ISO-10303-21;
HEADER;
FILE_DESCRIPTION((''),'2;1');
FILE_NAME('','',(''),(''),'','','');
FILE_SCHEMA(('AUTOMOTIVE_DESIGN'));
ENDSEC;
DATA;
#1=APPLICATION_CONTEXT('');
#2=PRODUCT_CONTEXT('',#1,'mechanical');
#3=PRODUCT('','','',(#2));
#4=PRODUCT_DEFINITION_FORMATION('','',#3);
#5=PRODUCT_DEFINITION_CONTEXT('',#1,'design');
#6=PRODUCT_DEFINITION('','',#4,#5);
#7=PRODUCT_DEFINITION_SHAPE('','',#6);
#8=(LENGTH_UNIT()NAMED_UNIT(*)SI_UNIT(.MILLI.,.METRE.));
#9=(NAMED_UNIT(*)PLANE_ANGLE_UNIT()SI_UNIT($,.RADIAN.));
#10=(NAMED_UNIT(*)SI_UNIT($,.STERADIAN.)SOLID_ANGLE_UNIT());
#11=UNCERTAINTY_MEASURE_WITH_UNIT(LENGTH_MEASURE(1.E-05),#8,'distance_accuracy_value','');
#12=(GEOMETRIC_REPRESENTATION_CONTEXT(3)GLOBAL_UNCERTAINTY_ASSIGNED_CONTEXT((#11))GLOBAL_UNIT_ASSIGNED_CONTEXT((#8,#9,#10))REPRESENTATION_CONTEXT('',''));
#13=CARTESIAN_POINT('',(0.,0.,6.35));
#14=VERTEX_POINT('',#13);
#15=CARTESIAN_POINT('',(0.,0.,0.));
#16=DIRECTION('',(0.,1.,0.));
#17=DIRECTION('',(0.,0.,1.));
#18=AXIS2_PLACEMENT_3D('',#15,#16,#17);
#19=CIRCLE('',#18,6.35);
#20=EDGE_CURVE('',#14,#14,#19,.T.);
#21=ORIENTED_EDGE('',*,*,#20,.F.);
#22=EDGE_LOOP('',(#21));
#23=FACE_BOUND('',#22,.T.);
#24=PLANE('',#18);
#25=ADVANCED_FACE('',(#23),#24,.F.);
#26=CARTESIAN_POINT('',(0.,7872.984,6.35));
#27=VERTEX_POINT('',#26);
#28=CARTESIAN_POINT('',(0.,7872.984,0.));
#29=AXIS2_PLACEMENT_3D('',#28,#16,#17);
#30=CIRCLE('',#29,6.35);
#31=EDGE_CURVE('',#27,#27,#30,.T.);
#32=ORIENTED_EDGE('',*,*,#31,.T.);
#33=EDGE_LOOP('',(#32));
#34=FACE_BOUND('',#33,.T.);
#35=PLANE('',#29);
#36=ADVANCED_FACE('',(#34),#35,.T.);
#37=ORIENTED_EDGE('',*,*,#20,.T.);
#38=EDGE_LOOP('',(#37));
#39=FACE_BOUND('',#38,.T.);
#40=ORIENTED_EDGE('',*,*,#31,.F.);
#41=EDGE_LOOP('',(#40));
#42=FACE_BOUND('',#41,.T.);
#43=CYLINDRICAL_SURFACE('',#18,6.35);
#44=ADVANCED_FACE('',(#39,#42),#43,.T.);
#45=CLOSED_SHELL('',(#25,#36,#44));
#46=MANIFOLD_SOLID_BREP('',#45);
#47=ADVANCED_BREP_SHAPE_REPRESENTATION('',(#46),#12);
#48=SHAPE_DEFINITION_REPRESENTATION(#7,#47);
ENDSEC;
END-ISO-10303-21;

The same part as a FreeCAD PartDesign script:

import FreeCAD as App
import Part
import Sketcher
from FreeCAD import Vector
Q = App.Units.Quantity

doc = App.newDocument("Part")
body = doc.addObject("PartDesign::Body", "Body")

sketch1 = body.newObject("Sketcher::SketchObject", "Sketch")
sketch1.AttachmentSupport = (doc.getObject("XZ_Plane"), [""])
sketch1.MapMode = "FlatFace"
sketch1.addGeometry(Part.Circle(Vector(0, 0, 0), Vector(0, 0, 1), 6), False)
sketch1.addConstraint([
    Sketcher.Constraint("Coincident", 0, 3, -1, 1),
    Sketcher.Constraint("Diameter", 0, Q("0.5 in")),
])

sketch2 = body.newObject("Sketcher::SketchObject", "Sketch001")
sketch2.AttachmentSupport = (doc.getObject("XY_Plane"), [""])
sketch2.MapMode = "FlatFace"
sketch2.addGeometry(Part.LineSegment(Vector(0, 0, 0), Vector(0, 7873, 0)), False)
sketch2.addConstraint([
    Sketcher.Constraint("Vertical", 0),
    Sketcher.Constraint("Coincident", 0, 1, -1, 1),
    Sketcher.Constraint("DistanceY", 0, 1, 0, 2, Q("309.96 in")),
])
doc.recompute()

additivepipe = body.newObject("PartDesign::AdditivePipe", "AdditivePipe")
additivepipe.Profile = sketch1
additivepipe.Spine = (sketch2, ["Edge1"])

doc.recompute()
